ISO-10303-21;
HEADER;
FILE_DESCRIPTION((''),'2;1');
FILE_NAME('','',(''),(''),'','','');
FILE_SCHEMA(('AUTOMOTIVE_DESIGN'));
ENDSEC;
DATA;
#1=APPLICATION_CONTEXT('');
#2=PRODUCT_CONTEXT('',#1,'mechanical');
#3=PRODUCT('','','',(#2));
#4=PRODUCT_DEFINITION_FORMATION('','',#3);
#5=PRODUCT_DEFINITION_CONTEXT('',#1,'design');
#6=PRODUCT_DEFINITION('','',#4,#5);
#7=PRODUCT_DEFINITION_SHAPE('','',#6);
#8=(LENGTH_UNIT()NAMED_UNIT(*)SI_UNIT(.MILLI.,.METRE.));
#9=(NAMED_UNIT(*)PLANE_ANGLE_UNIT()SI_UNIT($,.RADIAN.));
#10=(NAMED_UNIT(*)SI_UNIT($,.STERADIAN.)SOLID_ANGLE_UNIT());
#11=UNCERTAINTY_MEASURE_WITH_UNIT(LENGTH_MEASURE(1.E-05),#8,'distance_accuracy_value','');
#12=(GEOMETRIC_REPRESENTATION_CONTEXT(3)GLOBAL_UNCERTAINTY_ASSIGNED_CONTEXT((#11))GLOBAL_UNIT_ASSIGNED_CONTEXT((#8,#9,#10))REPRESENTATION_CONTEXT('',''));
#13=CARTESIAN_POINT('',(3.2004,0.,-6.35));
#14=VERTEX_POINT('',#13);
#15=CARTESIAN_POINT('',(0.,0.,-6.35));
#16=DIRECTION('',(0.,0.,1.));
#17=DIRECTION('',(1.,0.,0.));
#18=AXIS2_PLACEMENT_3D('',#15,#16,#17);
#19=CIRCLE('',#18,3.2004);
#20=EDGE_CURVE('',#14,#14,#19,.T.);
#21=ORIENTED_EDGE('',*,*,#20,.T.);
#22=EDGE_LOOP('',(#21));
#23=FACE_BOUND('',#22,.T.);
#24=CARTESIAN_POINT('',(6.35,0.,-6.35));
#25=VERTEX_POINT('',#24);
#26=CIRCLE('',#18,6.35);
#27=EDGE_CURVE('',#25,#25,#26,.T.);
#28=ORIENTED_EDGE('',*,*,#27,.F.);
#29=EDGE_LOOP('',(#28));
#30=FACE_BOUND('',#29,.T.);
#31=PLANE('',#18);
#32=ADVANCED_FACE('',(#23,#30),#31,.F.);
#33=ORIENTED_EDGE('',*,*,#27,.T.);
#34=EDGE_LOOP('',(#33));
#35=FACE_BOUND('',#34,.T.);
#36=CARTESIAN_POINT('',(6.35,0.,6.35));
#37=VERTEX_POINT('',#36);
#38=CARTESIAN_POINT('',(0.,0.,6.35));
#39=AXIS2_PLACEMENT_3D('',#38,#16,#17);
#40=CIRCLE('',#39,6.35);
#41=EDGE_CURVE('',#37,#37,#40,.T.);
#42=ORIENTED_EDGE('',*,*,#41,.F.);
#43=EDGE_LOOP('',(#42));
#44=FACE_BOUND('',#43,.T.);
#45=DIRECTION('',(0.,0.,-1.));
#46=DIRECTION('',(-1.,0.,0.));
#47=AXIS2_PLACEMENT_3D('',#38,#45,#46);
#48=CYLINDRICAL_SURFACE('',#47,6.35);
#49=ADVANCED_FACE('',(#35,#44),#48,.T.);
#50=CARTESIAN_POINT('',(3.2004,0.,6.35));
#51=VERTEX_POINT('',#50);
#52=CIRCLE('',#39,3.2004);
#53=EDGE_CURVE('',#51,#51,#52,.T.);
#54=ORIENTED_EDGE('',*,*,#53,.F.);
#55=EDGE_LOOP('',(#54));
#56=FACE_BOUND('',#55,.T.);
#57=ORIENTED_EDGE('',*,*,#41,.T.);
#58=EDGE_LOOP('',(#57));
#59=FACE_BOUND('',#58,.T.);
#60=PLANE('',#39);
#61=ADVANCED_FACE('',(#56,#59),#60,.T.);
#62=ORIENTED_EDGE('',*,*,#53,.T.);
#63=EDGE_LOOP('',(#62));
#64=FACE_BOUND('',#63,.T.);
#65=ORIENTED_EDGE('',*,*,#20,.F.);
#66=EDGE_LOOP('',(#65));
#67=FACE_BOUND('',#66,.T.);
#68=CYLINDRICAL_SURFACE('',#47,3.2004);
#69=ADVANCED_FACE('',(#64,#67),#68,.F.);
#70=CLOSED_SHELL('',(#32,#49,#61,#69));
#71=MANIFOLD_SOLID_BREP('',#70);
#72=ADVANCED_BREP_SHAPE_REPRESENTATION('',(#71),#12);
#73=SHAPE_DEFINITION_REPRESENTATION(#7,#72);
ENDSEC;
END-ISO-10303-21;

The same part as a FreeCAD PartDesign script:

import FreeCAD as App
import Part
import Sketcher

V = App.Vector
Q = App.Units.Quantity

doc = App.newDocument("Part")
body = doc.addObject("PartDesign::Body", "Body")

# Sketch on XY plane
sketch1 = body.newObject("Sketcher::SketchObject", "Sketch")
sketch1.AttachmentSupport = (doc.getObject("XY_Plane"), [""])
sketch1.MapMode = "FlatFace"
sketch1.addGeometry([
    Part.Circle(V(0, 0, 0), V(0, 0, 1), 6.3),
    Part.Circle(V(0, 0, 0), V(0, 0, 1), 3.2),
], False)
sketch1.addConstraint([
    Sketcher.Constraint("Coincident", 0, 3, -1, 1),
    Sketcher.Constraint("Coincident", 1, 3, -1, 1),
    Sketcher.Constraint("Diameter", 0, Q("0.5 in")),
    Sketcher.Constraint("Diameter", 1, Q("0.252 in")),
])
pad1 = body.newObject("PartDesign::Pad", "Pad")
pad1.Profile = sketch1
pad1.Type = "TwoLengths"
pad1.Length = Q("0.25 in")
pad1.Length2 = Q("0.25 in")

doc.recompute()
